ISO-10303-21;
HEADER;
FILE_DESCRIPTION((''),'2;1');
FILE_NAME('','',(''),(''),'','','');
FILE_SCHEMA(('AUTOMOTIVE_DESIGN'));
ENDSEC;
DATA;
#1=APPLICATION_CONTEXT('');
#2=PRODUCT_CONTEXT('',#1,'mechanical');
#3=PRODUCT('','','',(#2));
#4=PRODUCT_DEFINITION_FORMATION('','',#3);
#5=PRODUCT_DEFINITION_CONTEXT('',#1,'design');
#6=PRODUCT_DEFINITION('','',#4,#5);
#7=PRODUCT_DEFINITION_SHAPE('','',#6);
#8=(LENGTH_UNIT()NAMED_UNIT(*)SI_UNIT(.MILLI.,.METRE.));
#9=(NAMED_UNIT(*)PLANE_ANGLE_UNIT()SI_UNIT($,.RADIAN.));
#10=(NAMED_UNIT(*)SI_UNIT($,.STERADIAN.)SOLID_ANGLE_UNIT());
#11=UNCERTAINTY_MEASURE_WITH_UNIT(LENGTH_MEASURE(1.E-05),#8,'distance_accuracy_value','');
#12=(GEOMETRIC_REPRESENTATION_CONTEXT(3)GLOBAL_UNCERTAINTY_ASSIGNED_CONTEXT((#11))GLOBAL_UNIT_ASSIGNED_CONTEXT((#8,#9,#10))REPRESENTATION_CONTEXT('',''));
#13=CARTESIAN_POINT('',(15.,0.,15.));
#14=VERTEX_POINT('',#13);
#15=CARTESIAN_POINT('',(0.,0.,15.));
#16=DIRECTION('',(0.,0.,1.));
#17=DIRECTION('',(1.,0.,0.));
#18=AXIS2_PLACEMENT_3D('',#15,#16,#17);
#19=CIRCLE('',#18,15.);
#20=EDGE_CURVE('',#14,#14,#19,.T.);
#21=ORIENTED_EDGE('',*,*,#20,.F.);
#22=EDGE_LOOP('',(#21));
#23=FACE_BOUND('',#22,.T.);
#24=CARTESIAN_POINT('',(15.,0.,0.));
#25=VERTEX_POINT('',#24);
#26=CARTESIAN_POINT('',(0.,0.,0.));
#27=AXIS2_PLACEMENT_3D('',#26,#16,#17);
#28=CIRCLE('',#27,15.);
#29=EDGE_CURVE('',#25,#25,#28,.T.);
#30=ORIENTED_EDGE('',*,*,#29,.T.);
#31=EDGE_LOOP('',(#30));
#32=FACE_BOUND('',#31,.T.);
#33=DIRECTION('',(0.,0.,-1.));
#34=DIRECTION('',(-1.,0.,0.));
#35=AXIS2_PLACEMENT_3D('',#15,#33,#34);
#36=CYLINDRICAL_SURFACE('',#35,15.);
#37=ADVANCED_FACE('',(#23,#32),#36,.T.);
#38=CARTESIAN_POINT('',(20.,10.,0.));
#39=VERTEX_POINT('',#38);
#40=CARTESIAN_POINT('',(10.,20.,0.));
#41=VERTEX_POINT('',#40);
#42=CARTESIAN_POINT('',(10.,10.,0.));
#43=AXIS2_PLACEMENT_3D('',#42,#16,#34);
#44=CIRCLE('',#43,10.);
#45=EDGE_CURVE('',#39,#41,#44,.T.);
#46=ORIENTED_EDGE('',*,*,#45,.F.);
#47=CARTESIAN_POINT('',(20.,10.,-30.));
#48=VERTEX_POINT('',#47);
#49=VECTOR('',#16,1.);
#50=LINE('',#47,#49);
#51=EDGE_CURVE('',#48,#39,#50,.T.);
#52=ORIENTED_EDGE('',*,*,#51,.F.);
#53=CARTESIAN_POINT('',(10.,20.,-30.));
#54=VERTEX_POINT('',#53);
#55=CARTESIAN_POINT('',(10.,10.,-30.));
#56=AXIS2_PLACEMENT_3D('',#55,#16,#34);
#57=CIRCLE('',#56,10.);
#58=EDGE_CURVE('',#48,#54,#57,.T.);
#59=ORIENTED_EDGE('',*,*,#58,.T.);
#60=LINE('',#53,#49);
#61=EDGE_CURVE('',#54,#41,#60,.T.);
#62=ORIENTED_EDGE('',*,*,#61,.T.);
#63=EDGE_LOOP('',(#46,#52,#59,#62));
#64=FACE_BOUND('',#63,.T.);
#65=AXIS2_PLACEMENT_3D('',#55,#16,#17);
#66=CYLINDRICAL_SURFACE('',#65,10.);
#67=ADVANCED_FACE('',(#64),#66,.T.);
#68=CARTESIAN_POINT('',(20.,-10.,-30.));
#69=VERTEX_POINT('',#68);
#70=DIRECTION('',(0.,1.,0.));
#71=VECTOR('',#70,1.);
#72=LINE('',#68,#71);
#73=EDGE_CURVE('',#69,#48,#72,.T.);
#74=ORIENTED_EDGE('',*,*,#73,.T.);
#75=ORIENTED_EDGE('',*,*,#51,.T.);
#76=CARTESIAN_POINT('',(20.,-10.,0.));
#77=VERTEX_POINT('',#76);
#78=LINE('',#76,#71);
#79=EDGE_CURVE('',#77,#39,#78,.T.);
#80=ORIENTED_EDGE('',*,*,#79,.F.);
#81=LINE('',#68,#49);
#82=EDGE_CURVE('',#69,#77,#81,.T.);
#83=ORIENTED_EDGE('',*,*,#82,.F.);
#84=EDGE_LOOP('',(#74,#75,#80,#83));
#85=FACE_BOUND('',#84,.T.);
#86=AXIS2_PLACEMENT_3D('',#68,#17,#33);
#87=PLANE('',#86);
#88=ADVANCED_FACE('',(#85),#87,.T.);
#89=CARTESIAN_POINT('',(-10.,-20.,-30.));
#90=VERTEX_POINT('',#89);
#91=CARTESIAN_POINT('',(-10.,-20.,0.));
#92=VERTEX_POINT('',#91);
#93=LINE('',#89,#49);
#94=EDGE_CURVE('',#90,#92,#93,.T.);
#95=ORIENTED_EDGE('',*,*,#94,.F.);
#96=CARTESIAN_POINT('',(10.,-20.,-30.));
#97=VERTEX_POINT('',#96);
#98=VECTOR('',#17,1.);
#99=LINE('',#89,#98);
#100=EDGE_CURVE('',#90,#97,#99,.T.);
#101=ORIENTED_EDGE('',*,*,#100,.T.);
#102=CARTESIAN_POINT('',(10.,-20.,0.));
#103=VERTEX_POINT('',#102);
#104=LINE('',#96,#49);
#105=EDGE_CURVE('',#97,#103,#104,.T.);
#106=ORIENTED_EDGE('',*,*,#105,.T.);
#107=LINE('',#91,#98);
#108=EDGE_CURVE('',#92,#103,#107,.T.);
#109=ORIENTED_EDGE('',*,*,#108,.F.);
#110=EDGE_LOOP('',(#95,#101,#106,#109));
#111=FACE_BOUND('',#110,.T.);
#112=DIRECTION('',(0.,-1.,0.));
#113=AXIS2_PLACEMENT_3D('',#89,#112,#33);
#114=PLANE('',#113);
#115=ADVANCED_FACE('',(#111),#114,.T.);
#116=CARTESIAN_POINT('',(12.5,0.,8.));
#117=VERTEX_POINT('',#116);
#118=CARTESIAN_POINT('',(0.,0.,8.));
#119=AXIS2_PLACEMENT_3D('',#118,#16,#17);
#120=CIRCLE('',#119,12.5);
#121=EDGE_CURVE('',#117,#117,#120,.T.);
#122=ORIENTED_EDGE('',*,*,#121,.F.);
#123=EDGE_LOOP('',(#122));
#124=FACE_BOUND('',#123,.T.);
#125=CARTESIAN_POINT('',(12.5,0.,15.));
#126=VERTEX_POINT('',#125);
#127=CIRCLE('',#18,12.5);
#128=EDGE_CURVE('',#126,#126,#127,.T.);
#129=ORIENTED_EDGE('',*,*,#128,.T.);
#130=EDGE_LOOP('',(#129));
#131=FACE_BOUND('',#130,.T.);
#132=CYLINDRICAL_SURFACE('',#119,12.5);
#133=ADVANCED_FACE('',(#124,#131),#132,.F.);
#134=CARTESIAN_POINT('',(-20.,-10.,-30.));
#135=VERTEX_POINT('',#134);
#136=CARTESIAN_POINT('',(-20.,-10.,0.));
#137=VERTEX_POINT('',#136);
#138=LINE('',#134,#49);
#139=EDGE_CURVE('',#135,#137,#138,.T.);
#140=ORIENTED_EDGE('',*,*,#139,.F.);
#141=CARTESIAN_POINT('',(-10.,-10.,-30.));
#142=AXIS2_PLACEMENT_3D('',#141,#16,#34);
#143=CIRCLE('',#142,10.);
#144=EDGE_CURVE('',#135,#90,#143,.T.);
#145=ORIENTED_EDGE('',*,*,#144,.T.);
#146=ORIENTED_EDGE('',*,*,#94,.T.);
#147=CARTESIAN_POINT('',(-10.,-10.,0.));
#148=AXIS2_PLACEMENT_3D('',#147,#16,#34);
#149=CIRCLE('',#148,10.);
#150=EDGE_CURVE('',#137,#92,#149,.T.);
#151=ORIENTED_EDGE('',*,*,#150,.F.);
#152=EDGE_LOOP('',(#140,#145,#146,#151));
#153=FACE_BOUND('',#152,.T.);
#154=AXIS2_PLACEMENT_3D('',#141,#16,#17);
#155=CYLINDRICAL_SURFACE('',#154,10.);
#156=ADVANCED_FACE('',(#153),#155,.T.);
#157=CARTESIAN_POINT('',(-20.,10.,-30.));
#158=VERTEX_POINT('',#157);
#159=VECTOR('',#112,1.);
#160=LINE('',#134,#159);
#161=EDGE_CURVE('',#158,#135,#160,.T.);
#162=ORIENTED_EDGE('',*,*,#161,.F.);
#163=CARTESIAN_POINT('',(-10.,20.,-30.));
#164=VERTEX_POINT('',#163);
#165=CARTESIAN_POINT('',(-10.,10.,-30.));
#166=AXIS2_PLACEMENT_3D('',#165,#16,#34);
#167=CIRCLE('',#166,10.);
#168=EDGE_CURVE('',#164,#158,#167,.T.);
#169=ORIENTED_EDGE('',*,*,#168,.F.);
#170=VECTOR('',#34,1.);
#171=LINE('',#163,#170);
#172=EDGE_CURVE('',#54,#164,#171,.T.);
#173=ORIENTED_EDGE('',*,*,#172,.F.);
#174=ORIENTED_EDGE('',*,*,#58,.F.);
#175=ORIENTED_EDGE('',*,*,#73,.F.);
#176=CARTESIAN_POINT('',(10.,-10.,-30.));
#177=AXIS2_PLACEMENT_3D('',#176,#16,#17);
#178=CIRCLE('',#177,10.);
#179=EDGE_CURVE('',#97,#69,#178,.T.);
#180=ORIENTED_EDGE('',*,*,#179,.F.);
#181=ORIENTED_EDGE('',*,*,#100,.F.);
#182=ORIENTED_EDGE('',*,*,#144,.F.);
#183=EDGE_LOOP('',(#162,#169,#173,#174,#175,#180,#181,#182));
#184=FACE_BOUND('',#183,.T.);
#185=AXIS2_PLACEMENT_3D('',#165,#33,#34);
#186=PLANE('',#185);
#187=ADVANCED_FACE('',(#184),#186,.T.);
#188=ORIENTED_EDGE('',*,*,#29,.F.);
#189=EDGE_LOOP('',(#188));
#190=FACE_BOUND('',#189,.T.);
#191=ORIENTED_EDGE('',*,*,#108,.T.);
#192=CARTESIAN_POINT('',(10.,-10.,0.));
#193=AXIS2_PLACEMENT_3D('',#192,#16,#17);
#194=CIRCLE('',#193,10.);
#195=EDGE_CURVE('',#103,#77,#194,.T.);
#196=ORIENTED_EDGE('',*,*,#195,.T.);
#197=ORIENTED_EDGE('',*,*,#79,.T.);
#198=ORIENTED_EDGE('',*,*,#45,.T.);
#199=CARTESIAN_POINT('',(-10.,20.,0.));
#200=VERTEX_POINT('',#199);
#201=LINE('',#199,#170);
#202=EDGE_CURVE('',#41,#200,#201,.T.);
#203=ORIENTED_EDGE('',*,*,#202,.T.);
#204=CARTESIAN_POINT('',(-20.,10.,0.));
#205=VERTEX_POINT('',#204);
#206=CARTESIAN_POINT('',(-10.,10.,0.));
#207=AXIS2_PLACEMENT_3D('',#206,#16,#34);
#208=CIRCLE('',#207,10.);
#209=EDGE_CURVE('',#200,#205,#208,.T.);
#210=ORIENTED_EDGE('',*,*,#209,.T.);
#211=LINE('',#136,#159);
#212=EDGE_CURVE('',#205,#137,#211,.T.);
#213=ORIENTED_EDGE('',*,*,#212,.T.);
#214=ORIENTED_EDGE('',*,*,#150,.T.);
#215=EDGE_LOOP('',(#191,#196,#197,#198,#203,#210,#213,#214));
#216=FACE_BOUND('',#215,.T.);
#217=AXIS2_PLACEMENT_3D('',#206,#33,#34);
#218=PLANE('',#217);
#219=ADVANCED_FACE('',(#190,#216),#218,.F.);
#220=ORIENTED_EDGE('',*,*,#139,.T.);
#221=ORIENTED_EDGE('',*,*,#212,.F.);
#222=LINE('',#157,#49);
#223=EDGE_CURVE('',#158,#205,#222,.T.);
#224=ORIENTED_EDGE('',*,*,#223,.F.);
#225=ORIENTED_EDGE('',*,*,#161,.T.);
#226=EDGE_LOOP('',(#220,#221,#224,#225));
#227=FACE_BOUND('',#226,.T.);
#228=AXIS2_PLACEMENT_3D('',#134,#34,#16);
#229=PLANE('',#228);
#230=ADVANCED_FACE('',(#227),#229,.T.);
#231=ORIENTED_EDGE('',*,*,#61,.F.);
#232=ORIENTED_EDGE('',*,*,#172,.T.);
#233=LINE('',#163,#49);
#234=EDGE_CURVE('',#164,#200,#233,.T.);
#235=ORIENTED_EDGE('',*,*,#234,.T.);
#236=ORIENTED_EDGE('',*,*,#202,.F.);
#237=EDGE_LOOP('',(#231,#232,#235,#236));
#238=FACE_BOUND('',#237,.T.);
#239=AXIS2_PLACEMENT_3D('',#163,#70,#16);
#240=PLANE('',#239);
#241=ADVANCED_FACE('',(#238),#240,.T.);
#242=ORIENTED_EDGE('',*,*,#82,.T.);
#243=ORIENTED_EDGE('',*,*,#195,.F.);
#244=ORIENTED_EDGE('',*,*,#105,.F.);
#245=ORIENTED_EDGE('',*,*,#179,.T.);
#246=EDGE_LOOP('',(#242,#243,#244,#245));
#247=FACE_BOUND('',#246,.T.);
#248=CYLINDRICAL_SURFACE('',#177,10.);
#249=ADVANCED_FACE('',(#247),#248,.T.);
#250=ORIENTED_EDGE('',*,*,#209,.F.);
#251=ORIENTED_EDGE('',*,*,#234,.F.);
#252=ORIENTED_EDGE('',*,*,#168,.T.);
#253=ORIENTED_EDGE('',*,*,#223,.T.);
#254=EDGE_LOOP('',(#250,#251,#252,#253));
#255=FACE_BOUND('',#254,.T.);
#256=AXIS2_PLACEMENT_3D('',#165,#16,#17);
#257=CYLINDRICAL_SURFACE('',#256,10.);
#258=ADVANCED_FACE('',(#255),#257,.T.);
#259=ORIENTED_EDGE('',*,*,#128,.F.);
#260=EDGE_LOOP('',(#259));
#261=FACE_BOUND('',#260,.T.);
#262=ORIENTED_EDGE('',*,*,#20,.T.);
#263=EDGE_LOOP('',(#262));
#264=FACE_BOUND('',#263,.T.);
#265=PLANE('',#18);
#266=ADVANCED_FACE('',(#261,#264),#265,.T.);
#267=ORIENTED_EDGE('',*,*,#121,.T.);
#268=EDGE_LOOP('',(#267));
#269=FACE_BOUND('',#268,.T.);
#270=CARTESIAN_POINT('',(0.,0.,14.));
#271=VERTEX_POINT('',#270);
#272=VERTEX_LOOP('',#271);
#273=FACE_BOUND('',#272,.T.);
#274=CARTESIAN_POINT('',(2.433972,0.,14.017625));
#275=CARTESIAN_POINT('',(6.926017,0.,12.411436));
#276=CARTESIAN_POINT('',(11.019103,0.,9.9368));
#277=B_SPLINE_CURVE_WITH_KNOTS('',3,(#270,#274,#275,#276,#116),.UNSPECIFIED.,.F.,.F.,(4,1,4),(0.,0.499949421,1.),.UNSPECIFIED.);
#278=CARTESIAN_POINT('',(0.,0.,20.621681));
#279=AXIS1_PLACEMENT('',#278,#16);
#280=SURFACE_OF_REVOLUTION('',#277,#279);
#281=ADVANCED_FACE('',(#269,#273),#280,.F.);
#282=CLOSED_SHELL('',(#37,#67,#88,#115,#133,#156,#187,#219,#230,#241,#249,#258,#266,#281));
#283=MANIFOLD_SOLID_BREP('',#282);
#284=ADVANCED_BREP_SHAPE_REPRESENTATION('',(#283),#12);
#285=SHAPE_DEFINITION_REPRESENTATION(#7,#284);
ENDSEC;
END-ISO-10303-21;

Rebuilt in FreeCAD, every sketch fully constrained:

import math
import FreeCAD as App
import Part
import Sketcher
Q = App.Units.Quantity

doc = App.newDocument("Part")
body = doc.addObject("PartDesign::Body", "Body")

# Sketch on XY plane
sketch1 = body.newObject("Sketcher::SketchObject", "Sketch")
sketch1.AttachmentSupport = (doc.getObject("XY_Plane"), [""])
sketch1.MapMode = "FlatFace"
sketch1.addGeometry([
    Part.LineSegment(App.Vector(-10, -20, 0), App.Vector(10, -20, 0)),  # 0
    Part.ArcOfCircle(Part.Circle(App.Vector(10, -10, 0), App.Vector(0, 0, 1), 10), math.radians(-90), math.radians(0)),  # 1
    Part.LineSegment(App.Vector(20, -10, 0), App.Vector(20, 10, 0)),  # 2
    Part.ArcOfCircle(Part.Circle(App.Vector(10, 10, 0), App.Vector(0, 0, 1), 10), math.radians(0), math.radians(90)),  # 3
    Part.LineSegment(App.Vector(10, 20, 0), App.Vector(-10, 20, 0)),  # 4
    Part.ArcOfCircle(Part.Circle(App.Vector(-10, 10, 0), App.Vector(0, 0, 1), 10), math.radians(90), math.radians(180)),  # 5
    Part.LineSegment(App.Vector(-20, 10, 0), App.Vector(-20, -10, 0)),  # 6
    Part.ArcOfCircle(Part.Circle(App.Vector(-10, -10, 0), App.Vector(0, 0, 1), 10), math.radians(180), math.radians(270)),  # 7
], False)
sketch1.addConstraint([
    Sketcher.Constraint("Tangent", 0, 2, 1, 1),
    Sketcher.Constraint("Tangent", 1, 2, 2, 1),
    Sketcher.Constraint("Tangent", 2, 2, 3, 1),
    Sketcher.Constraint("Tangent", 3, 2, 4, 1),
    Sketcher.Constraint("Tangent", 4, 2, 5, 1),
    Sketcher.Constraint("Tangent", 5, 2, 6, 1),
    Sketcher.Constraint("Tangent", 6, 2, 7, 1),
    Sketcher.Constraint("Tangent", 7, 2, 0, 1),
    Sketcher.Constraint("Horizontal", 0),
    Sketcher.Constraint("Vertical", 2),
    Sketcher.Constraint("Horizontal", 4),
    Sketcher.Constraint("Vertical", 6),
    Sketcher.Constraint("Equal", 1, 3),
    Sketcher.Constraint("Equal", 3, 5),
    Sketcher.Constraint("Equal", 5, 7),
    Sketcher.Constraint("Symmetric", 1, 3, 5, 3, -1, 1),
    Sketcher.Constraint("Equal", 4, 2),
    Sketcher.Constraint("Radius", 1, Q("10 mm")),
    Sketcher.Constraint("DistanceX", 0, 1, 0, 2, Q("20 mm")),
])
pad1 = body.newObject("PartDesign::Pad", "Pad")
pad1.Profile = sketch1
pad1.Length = 30
pad1.Reversed = True

# Sketch on XY plane
sketch2 = body.newObject("Sketcher::SketchObject", "Sketch001")
sketch2.AttachmentSupport = (doc.getObject("XY_Plane"), [""])
sketch2.MapMode = "FlatFace"
sketch2.addGeometry(Part.Circle(App.Vector(0, 0, 0), App.Vector(0, 0, 1), 15), False)
sketch2.addConstraint([
    Sketcher.Constraint("Coincident", 0, 3, -1, 1),
    Sketcher.Constraint("Diameter", 0, Q("30 mm")),
])
pad2 = body.newObject("PartDesign::Pad", "Pad001")
pad2.Profile = sketch2
pad2.Length = 15

# Sketch on XY plane
sketch3 = body.newObject("Sketcher::SketchObject", "Sketch002")
sketch3.AttachmentSupport = (doc.getObject("XY_Plane"), [""])
sketch3.MapMode = "FlatFace"
sketch3.AttachmentOffset = App.Placement(App.Vector(0, 0, 15), App.Rotation())
sketch3.addGeometry(Part.Circle(App.Vector(0, 0, 0), App.Vector(0, 0, 1), 12), False)
sketch3.addConstraint([
    Sketcher.Constraint("Coincident", 0, 3, -1, 1),
    Sketcher.Constraint("Diameter", 0, Q("25 mm")),
])
pocket1 = body.newObject("PartDesign::Pocket", "Pocket")
pocket1.Profile = sketch3
pocket1.Length = 7

# Sketch on XZ plane
sketch4 = body.newObject("Sketcher::SketchObject", "Sketch003")
sketch4.AttachmentSupport = (doc.getObject("XZ_Plane"), [""])
sketch4.MapMode = "FlatFace"
sketch4.addGeometry([
    Part.LineSegment(App.Vector(12.5, 8, 0), App.Vector(0, 8, 0)),
    Part.LineSegment(App.Vector(0, 8, 0), App.Vector(0, 14, 0)),
    Part.BSplineCurve([App.Vector(0, 14, 0), App.Vector(2.433972, 14.017625, 0), App.Vector(6.926017, 12.411436, 0), App.Vector(11.019103, 9.9368, 0), App.Vector(12.5, 8, 0)], [4, 1, 4], [0, 0.499949421, 1], False, 3, [1, 1, 1, 1, 1], False),
], False)
sketch4.addConstraint([
    Sketcher.Constraint("Block", 2),
    Sketcher.Constraint("Coincident", 0, 2, 1, 1),
    Sketcher.Constraint("Coincident", 1, 2, 2, 1),
    Sketcher.Constraint("Coincident", 2, 2, 0, 1),
    Sketcher.Constraint("Horizontal", 0),
    Sketcher.Constraint("Vertical", 1),
])
revolution = body.newObject("PartDesign::Revolution", "Revolution")
revolution.Profile = sketch4
revolution.ReferenceAxis = (sketch4, ["V_Axis"])
revolution.Angle = 360

doc.recompute()
